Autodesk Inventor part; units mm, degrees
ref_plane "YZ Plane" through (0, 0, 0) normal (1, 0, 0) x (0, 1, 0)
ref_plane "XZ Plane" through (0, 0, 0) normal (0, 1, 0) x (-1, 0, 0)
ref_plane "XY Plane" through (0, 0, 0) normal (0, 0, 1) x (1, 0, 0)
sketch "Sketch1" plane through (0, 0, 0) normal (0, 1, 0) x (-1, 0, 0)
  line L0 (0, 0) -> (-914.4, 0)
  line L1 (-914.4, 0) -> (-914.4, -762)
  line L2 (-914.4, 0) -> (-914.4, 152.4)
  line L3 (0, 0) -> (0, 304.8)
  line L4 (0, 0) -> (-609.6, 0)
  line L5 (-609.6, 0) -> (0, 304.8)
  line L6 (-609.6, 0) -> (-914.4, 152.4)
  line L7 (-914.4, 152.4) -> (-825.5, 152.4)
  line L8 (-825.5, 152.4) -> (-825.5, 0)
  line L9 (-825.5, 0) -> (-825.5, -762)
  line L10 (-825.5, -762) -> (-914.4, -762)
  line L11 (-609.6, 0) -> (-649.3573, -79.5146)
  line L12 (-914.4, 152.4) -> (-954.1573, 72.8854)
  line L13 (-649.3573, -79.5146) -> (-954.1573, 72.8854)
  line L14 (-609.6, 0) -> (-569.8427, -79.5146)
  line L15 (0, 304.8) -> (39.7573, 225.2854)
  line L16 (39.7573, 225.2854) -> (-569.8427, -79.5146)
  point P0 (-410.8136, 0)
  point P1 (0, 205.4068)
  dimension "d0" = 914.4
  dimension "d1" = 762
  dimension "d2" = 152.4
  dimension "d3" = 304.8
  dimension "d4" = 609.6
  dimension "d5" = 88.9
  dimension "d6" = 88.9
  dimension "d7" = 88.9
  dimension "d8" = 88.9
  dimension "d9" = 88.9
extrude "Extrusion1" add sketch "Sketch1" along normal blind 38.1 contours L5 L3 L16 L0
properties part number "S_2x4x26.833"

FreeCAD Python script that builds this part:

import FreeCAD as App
import Part
import Sketcher
from FreeCAD import Vector
Q = App.Units.Quantity

doc = App.newDocument("Part")
body = doc.addObject("PartDesign::Body", "Body")

# Sketch on XZ plane
sketch1 = doc.addObject("Sketcher::SketchObject", "Sketch")
body.addObject(sketch1)
sketch1.AttachmentSupport = (doc.XZ_Plane, [""])
sketch1.MapMode = "FlatFace"
sketch1.addGeometry(Part.LineSegment(Vector(0, 305, 0), Vector(610, 0, 0)), False)
sketch1.addGeometry(Part.LineSegment(Vector(610, 0, 0), Vector(411, 0, 0)), False)
sketch1.addGeometry(Part.LineSegment(Vector(411, 0, 0), Vector(0, 205, 0)), False)
sketch1.addGeometry(Part.LineSegment(Vector(0, 205, 0), Vector(0, 305, 0)), False)
sketch1.addConstraint(Sketcher.Constraint("Coincident", 0, 2, 1, 1))
sketch1.addConstraint(Sketcher.Constraint("Coincident", 1, 2, 2, 1))
sketch1.addConstraint(Sketcher.Constraint("Coincident", 2, 2, 3, 1))
sketch1.addConstraint(Sketcher.Constraint("Coincident", 3, 2, 0, 1))
sketch1.addConstraint(Sketcher.Constraint("Horizontal", 1))
sketch1.addConstraint(Sketcher.Constraint("Vertical", 3))
sketch1.addConstraint(Sketcher.Constraint("PointOnObject", 0, 2, -1))
sketch1.addConstraint(Sketcher.Constraint("PointOnObject", 2, 2, -2))
sketch1.addConstraint(Sketcher.Constraint("Parallel", 0, 2))
sketch1.addConstraint(Sketcher.Constraint("DistanceX", -1, 1, 0, 2, Q("24 in")))
sketch1.addConstraint(Sketcher.Constraint("DistanceY", -1, 1, 3, 2, Q("12 in")))
sketch1.addConstraint(Sketcher.Constraint("DistanceX", 1, 2, 1, 1, 198.7865))
pad1 = doc.addObject("PartDesign::Pad", "Pad")
body.addObject(pad1)
pad1.Profile = sketch1
pad1.Length = Q("1.5 in")
pad1.Reversed = True

doc.recompute()
